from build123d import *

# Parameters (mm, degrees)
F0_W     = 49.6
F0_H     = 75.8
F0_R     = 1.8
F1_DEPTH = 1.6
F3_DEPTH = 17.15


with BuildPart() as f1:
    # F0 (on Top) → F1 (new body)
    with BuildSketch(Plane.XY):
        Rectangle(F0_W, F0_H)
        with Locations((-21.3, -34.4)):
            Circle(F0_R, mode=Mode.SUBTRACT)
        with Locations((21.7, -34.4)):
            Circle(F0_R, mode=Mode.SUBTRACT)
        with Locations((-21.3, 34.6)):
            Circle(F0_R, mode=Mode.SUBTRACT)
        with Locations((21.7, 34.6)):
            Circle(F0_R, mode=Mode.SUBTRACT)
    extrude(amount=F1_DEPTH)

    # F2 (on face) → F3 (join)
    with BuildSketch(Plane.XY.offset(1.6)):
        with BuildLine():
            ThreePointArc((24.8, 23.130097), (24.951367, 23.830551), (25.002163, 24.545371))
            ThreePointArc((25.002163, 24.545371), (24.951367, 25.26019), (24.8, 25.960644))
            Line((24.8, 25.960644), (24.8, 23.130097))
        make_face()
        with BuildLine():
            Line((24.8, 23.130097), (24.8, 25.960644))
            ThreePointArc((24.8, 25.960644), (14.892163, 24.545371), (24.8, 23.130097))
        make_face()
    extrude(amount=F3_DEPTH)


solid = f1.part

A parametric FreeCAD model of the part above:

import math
import FreeCAD as App
import Part
import Sketcher

V = App.Vector

doc = App.newDocument("Part")
params = doc.addObject("Spreadsheet::Sheet", "Params")
for row, (alias, value) in enumerate([
    ("sketch1_diameter", "3.6 mm"),
    ("sketch1_width", "49.6 mm"),
    ("sketch1_height", "75.8 mm"),
    ("pad1_length", "1.6 mm"),
    ("pad2_length", "17.15 mm"),
], start=1):
    params.set(f"A{row}", alias)
    params.set(f"B{row}", "=" + value)
    params.setAlias(f"B{row}", alias)

body = doc.addObject("PartDesign::Body", "Body")

# Sketch on XY plane
sketch1 = doc.addObject("Sketcher::SketchObject", "Sketch")
body.addObject(sketch1)
sketch1.AttachmentSupport = (doc.XY_Plane, [""])
sketch1.MapMode = "FlatFace"
sketch1.addGeometry([
    Part.LineSegment(V(-24.8, 37.9, 0), V(-24.8, -37.9, 0)),  # 0
    Part.LineSegment(V(-24.8, -37.9, 0), V(24.8, -37.9, 0)),  # 1
    Part.LineSegment(V(24.8, -37.9, 0), V(24.8, 37.9, 0)),  # 2
    Part.LineSegment(V(24.8, 37.9, 0), V(-24.8, 37.9, 0)),  # 3
    Part.Circle(V(-21.3, -34.4, 0), V(0, 0, 1), 1.8),  # 4
    Part.Circle(V(21.7, -34.4, 0), V(0, 0, 1), 1.8),  # 5
    Part.Circle(V(-21.3, 34.6, 0), V(0, 0, 1), 1.8),  # 6
    Part.Circle(V(21.7, 34.6, 0), V(0, 0, 1), 1.8),  # 7
], False)
sketch1.addConstraint([
    Sketcher.Constraint("Coincident", 0, 2, 1, 1),
    Sketcher.Constraint("Coincident", 1, 2, 2, 1),
    Sketcher.Constraint("Coincident", 2, 2, 3, 1),
    Sketcher.Constraint("Coincident", 3, 2, 0, 1),
    Sketcher.Constraint("Vertical", 0),
    Sketcher.Constraint("Horizontal", 1),
    Sketcher.Constraint("Vertical", 2),
    Sketcher.Constraint("Horizontal", 3),
    Sketcher.Constraint("Equal", 4, 5),
    Sketcher.Constraint("Equal", 5, 6),
    Sketcher.Constraint("Equal", 6, 7),
    Sketcher.Constraint("Symmetric", 0, 2, 2, 2, -1, 1),
    Sketcher.Constraint("Horizontal", 4, 3, 5, 3),
    Sketcher.Constraint("Horizontal", 6, 3, 7, 3),
    Sketcher.Constraint("Vertical", 4, 3, 6, 3),
    Sketcher.Constraint("Vertical", 5, 3, 7, 3),
    Sketcher.Constraint("Diameter", 4, 3.6),
    Sketcher.Constraint("DistanceX", 1, 1, 1, 2, 49.6),
    Sketcher.Constraint("DistanceY", 0, 2, 0, 1, 75.8),
    Sketcher.Constraint("DistanceX", 4, 3, 5, 3, 43.0),
    Sketcher.Constraint("DistanceY", 4, 3, 6, 3, 69.0),
    Sketcher.Constraint("DistanceX", 4, 3, -1, 1, 21.3),
    Sketcher.Constraint("DistanceY", 4, 3, -1, 1, 34.4),
])
sketch1.setExpression("Constraints[16]", "Params.sketch1_diameter")
sketch1.setExpression("Constraints[17]", "Params.sketch1_width")
sketch1.setExpression("Constraints[18]", "Params.sketch1_height")
pad1 = doc.addObject("PartDesign::Pad", "Pad")
body.addObject(pad1)
pad1.Profile = sketch1
pad1.setExpression("Length", "Params.pad1_length")

# Sketch on XY plane
sketch2 = doc.addObject("Sketcher::SketchObject", "Sketch001")
body.addObject(sketch2)
sketch2.AttachmentSupport = (doc.XY_Plane, [""])
sketch2.MapMode = "FlatFace"
sketch2.AttachmentOffset = App.Placement(V(0, 0, 1.6), App.Rotation())
sketch2.addGeometry([
    Part.ArcOfCircle(Part.Circle(V(19.947154, 24.545371, 0), V(0, 0, 1), 5.055009), math.radians(-16.258692), math.radians(-0.000005)),
    Part.ArcOfCircle(Part.Circle(V(19.947154, 24.54537, 0), V(0, 0, 1), 5.055009), math.radians(0.000016), math.radians(16.258692)),
    Part.ArcOfCircle(Part.Circle(V(19.947163, 24.545371, 0), V(0, 0, 1), 5.055), math.radians(16.258711), math.radians(343.741289)),
], False)
sketch2.addConstraint([
    Sketcher.Constraint("Coincident", 0, 2, 1, 1),
    Sketcher.Constraint("Coincident", 1, 2, 2, 1),
    Sketcher.Constraint("Coincident", 2, 2, 0, 1),
    Sketcher.Constraint("Coincident", 1, 3, 0, 3),
    Sketcher.Constraint("Radius", 2, 5.055),
    Sketcher.Constraint("DistanceX", -1, 1, 1, 2, 24.8),
    Sketcher.Constraint("DistanceX", -1, 1, 2, 2, 24.8),
    Sketcher.Constraint("Radius", 0, 5.055009),
    Sketcher.Constraint("DistanceY", -1, 1, 0, 3, 24.545371),
    Sketcher.Constraint("DistanceY", -1, 1, 0, 2, 24.545371),
    Sketcher.Constraint("DistanceX", -1, 1, 0, 3, 19.947154),
])
pad2 = doc.addObject("PartDesign::Pad", "Pad001")
body.addObject(pad2)
pad2.Profile = sketch2
pad2.setExpression("Length", "Params.pad2_length")

doc.recompute()
